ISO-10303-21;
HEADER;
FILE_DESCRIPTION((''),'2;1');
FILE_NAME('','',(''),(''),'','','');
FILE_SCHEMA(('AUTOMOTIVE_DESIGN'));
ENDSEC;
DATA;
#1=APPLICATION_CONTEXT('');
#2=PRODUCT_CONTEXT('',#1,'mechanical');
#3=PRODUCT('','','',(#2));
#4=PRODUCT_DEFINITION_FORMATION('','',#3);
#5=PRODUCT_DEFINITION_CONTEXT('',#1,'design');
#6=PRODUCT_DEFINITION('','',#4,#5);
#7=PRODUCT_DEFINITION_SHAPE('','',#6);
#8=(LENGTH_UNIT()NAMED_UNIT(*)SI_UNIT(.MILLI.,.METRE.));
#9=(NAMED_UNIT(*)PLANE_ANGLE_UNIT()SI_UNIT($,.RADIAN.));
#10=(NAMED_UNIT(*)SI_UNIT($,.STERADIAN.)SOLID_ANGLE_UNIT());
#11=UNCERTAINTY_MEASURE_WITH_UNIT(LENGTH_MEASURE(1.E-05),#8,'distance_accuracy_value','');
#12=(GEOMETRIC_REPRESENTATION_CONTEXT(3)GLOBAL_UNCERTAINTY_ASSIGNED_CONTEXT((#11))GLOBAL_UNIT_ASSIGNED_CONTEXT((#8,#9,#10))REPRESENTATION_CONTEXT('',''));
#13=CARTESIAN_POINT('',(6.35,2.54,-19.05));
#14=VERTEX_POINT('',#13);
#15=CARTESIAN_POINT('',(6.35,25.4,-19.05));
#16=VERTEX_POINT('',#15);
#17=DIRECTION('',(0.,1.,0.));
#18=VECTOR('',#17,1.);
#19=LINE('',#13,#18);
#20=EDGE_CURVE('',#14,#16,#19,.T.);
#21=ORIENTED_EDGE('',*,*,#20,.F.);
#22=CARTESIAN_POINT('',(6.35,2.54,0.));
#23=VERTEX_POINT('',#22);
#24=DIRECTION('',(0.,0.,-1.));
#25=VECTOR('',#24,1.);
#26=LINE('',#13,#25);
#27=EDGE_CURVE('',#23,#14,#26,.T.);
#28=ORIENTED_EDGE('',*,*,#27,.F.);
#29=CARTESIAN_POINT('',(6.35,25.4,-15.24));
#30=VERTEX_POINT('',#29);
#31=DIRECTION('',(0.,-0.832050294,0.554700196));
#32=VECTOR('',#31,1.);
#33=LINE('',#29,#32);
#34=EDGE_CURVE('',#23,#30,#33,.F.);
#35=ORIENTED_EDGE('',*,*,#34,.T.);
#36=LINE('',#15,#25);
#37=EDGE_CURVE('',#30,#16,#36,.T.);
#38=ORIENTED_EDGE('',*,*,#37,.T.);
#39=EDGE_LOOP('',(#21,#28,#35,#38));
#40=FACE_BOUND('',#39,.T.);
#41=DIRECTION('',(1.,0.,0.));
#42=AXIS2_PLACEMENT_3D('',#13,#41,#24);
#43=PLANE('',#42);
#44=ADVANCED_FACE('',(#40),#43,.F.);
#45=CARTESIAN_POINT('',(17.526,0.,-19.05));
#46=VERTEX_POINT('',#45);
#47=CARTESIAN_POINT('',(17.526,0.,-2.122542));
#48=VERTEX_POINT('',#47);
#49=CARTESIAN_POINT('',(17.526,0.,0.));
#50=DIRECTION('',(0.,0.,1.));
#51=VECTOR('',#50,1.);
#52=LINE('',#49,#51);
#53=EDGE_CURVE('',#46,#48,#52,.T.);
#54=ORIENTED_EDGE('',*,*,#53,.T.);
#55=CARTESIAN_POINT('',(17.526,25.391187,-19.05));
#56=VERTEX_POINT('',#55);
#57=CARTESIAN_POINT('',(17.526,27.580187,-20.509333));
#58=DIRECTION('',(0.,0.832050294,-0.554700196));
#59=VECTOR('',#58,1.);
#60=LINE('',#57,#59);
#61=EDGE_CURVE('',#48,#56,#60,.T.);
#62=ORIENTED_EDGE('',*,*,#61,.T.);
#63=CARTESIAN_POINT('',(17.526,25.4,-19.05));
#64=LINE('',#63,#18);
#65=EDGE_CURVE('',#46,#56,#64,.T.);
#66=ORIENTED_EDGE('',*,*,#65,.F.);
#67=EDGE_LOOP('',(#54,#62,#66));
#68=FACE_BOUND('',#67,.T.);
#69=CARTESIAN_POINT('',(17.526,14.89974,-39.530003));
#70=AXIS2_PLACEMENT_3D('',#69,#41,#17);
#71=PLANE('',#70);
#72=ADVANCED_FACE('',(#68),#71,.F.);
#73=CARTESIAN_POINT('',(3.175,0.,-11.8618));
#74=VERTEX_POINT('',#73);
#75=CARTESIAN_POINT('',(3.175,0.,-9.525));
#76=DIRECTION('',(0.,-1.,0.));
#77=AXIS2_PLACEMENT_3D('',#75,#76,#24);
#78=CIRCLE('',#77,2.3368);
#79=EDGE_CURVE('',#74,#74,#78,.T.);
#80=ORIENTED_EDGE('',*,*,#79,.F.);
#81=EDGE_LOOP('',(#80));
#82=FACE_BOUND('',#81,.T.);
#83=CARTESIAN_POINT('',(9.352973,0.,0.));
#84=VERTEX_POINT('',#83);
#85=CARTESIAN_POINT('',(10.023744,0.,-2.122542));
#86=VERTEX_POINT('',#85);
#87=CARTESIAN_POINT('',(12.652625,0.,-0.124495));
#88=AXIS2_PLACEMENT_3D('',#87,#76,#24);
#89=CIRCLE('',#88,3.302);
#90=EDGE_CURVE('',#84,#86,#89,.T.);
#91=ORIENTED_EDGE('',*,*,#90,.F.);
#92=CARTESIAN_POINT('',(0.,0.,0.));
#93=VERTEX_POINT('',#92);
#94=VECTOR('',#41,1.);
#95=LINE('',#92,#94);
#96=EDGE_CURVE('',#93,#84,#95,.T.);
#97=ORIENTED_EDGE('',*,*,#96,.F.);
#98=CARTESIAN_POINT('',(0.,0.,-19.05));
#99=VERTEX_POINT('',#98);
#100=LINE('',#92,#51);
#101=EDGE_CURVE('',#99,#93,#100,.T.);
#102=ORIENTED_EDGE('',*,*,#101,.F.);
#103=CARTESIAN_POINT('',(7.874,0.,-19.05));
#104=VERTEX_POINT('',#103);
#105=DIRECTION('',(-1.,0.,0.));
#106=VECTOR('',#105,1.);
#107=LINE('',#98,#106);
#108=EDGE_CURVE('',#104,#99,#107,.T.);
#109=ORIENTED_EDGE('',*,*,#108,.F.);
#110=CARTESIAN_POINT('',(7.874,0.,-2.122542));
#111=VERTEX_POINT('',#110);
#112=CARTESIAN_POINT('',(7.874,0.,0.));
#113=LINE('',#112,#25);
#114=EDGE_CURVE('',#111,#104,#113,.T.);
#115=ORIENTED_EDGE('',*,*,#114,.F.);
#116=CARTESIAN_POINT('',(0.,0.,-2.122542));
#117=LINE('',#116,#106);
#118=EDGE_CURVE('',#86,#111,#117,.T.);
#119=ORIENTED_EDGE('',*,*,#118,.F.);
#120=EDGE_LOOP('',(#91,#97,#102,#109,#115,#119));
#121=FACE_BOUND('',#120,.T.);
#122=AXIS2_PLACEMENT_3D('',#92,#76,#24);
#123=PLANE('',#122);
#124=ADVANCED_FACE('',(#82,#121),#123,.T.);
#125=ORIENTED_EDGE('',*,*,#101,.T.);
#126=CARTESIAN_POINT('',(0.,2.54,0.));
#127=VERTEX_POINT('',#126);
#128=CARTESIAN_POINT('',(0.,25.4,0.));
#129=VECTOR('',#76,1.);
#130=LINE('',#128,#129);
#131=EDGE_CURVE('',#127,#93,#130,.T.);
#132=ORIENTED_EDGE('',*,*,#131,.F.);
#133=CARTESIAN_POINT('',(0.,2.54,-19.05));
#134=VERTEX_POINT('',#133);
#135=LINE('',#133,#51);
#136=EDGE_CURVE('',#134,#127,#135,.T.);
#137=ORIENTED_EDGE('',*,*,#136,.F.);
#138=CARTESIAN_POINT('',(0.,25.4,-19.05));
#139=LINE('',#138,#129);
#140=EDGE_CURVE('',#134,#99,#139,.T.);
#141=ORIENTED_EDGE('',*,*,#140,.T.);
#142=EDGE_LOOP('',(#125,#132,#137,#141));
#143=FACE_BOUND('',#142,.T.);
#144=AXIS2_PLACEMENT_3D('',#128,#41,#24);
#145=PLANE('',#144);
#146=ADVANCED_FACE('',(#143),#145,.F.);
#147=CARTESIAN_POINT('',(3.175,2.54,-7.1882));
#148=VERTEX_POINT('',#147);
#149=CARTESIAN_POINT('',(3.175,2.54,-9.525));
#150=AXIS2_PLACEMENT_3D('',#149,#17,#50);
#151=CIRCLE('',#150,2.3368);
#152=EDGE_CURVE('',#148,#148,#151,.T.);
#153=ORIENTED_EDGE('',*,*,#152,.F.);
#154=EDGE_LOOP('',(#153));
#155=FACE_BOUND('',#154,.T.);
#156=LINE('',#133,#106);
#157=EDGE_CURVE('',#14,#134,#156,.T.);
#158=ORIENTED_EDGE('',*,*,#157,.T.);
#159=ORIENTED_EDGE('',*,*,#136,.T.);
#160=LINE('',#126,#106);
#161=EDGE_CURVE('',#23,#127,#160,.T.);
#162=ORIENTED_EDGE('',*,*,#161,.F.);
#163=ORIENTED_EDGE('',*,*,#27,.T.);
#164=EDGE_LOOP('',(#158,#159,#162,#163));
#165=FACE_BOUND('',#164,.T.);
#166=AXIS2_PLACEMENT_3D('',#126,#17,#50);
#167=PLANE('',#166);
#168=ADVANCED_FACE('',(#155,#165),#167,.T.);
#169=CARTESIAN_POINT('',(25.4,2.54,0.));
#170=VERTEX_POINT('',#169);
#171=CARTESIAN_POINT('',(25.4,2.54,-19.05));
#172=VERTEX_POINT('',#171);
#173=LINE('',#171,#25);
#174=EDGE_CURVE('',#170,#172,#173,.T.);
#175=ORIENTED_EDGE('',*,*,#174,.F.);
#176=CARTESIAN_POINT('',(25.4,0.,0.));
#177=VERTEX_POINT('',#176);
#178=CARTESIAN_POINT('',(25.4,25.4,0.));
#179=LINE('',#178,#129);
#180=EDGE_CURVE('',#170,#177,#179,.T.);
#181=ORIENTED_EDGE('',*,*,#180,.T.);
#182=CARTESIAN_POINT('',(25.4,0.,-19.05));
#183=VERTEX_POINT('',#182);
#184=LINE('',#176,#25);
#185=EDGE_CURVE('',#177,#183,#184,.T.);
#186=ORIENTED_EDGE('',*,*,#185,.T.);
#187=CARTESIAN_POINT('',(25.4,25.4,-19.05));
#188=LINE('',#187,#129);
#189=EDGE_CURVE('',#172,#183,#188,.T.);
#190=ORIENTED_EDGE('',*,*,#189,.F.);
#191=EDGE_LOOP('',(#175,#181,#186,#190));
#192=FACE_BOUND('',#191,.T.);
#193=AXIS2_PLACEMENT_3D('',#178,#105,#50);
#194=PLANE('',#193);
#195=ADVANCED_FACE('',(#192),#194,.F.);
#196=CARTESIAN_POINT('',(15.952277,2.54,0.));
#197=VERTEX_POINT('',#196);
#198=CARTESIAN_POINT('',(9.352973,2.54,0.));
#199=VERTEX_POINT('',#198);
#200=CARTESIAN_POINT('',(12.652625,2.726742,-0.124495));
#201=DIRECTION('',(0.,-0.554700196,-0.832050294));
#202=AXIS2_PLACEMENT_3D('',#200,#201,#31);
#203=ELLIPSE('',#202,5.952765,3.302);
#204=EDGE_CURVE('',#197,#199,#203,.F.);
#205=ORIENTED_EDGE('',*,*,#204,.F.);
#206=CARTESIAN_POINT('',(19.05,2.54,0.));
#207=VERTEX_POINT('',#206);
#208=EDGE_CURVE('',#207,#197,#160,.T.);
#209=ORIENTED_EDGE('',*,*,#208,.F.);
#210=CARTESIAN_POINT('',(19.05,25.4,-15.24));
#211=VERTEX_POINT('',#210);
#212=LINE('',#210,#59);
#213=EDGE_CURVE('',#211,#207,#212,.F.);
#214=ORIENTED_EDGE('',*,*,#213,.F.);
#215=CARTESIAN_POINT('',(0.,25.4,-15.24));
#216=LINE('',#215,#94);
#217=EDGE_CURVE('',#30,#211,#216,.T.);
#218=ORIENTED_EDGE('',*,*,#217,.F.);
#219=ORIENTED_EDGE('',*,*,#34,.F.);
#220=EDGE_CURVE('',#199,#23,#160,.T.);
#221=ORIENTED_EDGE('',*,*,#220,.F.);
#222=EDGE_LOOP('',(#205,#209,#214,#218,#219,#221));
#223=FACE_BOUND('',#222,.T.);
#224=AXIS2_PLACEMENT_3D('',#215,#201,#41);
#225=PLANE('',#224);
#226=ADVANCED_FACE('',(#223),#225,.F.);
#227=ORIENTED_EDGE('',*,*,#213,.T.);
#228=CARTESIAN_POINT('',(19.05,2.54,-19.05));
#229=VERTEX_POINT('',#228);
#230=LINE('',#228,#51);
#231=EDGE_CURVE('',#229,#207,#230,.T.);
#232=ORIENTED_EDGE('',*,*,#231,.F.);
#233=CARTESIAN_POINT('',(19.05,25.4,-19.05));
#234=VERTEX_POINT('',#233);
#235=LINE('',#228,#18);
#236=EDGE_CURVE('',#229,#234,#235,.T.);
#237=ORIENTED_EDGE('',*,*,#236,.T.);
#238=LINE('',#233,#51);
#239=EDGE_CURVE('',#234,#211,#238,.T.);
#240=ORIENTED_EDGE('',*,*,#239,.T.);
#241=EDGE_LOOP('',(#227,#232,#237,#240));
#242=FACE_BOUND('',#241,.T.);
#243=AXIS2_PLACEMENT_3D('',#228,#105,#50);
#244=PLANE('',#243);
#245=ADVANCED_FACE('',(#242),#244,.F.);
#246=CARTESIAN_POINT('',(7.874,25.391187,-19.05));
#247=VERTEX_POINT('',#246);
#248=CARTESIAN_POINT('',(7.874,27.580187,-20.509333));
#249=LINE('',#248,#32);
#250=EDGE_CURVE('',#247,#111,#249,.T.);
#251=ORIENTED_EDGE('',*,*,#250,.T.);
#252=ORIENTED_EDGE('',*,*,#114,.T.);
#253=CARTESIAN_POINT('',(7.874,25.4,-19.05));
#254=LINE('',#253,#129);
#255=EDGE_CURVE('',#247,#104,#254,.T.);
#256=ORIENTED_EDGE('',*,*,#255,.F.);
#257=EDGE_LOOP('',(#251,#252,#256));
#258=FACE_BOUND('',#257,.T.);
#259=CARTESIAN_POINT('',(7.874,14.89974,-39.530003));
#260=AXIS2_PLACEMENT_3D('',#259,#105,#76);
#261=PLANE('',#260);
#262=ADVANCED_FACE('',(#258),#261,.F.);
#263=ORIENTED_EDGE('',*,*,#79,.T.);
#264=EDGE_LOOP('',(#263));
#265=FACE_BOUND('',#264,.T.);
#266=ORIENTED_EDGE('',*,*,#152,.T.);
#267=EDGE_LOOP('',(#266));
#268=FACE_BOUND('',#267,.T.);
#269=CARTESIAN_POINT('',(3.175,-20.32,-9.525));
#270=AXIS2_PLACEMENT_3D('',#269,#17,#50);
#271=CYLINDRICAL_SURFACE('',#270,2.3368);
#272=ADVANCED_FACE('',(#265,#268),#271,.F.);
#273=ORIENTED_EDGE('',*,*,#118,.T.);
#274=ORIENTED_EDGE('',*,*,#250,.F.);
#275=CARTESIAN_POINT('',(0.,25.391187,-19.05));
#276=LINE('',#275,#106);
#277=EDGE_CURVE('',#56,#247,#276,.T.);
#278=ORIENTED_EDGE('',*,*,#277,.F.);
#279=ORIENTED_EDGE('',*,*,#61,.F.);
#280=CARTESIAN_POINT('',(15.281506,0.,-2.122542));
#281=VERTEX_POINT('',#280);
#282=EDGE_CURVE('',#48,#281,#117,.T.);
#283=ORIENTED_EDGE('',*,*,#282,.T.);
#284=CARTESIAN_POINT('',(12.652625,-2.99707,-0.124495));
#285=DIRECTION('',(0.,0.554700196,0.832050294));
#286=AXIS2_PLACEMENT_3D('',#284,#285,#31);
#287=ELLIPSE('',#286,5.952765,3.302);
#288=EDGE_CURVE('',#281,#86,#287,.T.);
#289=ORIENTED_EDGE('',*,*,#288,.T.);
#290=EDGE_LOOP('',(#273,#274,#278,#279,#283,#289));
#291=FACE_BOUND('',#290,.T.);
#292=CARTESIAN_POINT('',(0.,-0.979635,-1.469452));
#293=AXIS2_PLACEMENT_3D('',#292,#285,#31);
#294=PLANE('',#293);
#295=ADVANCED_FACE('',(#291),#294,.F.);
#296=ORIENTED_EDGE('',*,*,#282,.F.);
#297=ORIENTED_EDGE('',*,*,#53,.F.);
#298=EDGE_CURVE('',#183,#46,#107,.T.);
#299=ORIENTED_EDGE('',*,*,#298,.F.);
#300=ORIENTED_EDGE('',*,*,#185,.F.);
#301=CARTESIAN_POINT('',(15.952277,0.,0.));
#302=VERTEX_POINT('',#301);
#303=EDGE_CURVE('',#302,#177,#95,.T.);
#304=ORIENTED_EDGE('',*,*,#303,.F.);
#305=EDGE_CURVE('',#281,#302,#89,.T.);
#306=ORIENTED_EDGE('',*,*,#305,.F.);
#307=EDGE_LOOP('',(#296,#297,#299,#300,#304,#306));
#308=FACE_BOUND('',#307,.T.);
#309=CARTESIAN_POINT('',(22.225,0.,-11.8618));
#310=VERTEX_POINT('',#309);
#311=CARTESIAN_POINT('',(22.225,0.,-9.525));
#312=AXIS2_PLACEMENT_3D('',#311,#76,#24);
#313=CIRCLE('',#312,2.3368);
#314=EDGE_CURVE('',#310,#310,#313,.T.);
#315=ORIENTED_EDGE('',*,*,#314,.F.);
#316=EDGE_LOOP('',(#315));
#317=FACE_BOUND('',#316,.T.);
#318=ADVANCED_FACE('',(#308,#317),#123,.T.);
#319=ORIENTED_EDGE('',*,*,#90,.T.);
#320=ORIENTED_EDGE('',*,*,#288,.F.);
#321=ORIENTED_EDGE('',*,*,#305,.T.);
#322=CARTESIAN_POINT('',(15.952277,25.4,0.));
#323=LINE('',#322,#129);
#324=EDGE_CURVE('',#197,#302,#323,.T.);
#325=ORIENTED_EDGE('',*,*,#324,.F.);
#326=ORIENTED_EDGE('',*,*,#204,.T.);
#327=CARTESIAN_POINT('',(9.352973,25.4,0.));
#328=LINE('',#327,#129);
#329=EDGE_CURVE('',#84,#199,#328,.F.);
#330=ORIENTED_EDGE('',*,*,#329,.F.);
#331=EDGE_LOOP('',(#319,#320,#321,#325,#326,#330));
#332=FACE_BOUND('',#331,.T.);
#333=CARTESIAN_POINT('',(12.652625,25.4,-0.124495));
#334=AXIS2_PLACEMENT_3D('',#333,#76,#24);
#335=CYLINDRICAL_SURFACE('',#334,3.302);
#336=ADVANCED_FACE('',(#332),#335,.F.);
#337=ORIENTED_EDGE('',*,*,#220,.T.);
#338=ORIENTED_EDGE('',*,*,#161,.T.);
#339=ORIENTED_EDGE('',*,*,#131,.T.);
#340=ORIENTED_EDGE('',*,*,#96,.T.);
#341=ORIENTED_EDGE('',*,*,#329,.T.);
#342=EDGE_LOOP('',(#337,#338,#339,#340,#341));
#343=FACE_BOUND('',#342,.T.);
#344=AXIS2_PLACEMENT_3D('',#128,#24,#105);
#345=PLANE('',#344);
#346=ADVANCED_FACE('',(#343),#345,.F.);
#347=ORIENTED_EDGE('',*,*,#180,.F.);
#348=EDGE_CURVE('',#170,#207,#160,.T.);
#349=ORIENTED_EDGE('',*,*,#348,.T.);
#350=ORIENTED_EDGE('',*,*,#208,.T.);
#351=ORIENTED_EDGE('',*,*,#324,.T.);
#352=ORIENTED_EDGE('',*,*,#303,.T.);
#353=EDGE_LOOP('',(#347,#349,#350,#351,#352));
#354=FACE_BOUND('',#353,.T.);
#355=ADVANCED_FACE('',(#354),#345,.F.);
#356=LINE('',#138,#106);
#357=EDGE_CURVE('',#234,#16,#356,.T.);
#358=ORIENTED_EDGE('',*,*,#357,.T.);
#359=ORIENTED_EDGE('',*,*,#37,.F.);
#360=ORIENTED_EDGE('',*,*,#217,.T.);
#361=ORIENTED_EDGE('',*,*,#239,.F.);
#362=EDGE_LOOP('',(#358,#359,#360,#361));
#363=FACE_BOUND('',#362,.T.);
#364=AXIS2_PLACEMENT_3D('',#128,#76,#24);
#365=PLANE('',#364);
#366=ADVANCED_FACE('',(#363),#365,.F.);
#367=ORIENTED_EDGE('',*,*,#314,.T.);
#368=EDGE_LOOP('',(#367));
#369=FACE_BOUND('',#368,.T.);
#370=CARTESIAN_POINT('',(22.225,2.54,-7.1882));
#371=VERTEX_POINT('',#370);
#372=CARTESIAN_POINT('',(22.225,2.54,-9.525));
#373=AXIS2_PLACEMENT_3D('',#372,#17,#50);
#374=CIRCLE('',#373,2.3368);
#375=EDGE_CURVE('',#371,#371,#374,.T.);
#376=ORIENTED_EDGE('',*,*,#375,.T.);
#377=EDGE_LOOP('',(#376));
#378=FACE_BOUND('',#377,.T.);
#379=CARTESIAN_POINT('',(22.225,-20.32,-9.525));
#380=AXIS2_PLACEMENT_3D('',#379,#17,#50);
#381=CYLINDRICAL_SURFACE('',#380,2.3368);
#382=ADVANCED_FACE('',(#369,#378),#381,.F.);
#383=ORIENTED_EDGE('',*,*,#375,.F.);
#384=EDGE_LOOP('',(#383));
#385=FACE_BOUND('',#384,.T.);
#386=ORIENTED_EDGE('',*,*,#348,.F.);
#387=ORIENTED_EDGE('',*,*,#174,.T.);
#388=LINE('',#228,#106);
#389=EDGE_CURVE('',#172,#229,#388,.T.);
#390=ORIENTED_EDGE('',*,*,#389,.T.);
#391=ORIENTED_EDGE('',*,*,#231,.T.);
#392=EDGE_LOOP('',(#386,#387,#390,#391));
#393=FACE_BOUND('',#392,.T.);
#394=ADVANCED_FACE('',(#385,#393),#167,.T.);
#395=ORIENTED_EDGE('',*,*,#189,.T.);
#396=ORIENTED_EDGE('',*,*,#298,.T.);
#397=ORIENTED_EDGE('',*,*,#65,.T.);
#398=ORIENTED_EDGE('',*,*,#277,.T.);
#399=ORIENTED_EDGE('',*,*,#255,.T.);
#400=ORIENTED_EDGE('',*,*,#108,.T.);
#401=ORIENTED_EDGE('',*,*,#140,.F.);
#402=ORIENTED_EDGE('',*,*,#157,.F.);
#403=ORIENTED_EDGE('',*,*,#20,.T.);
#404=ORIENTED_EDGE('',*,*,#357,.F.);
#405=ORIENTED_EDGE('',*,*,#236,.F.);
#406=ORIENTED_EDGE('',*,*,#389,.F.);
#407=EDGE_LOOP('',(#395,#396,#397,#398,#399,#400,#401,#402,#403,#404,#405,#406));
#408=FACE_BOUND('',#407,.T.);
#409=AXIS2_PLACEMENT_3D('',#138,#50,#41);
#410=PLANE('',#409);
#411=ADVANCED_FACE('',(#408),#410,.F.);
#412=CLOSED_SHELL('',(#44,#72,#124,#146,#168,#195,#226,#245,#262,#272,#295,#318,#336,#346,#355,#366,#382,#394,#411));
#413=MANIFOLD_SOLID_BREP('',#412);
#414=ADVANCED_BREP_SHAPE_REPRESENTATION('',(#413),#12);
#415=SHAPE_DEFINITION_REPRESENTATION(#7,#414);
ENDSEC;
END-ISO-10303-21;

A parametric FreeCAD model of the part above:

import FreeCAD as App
import Part
import Sketcher

V = App.Vector
Q = App.Units.Quantity


def edges_at(feature, points):
    """Names of the edges that pass closest to the given points."""
    edges = feature.Shape.Edges
    near = lambda p: min(range(len(edges)), key=lambda i: edges[i].distToShape(Part.Vertex(*p))[0])
    return sorted({f"Edge{near(p) + 1}" for p in points})

doc = App.newDocument("Part")
body = doc.addObject("PartDesign::Body", "Body")

sketch1 = body.newObject("Sketcher::SketchObject", "Sketch")
sketch1.AttachmentSupport = (doc.getObject("XZ_Plane"), [""])
sketch1.MapMode = "FlatFace"
sketch1.addGeometry([
    Part.LineSegment(V(0, -19, 0), V(0, 0, 0)),
    Part.LineSegment(V(0, 0, 0), V(25, 0, 0)),
    Part.LineSegment(V(25, 0, 0), V(25, -19, 0)),
    Part.LineSegment(V(25, -19, 0), V(0, -19, 0)),
], False)
sketch1.addConstraint([
    Sketcher.Constraint("Coincident", 0, 2, 1, 1),
    Sketcher.Constraint("Coincident", 1, 2, 2, 1),
    Sketcher.Constraint("Coincident", 2, 2, 3, 1),
    Sketcher.Constraint("Coincident", 3, 2, 0, 1),
    Sketcher.Constraint("Vertical", 0),
    Sketcher.Constraint("Horizontal", 1),
    Sketcher.Constraint("Vertical", 2),
    Sketcher.Constraint("Horizontal", 3),
    Sketcher.Constraint("Coincident", 0, 2, -1, 1),
    Sketcher.Constraint("DistanceX", 1, 1, 1, 2, Q("1 in")),
    Sketcher.Constraint("DistanceY", 0, 1, 0, 2, Q("0.75 in")),
])
pad1 = body.newObject("PartDesign::Pad", "Pad")
pad1.Profile = sketch1
pad1.Length = Q("1 in")
pad1.Reversed = True
doc.recompute()

chamfer = body.newObject("PartDesign::Chamfer", "Chamfer")
chamfer.Base = (pad1, edges_at(pad1, [(12.7, 25.4, 0)]))
chamfer.ChamferType = "Two distances"
chamfer.Size = Q("0.9 in")
chamfer.Size2 = Q("0.6 in")

sketch2 = body.newObject("Sketcher::SketchObject", "Sketch001")
sketch2.AttachmentSupport = (doc.getObject("XZ_Plane"), [""])
sketch2.MapMode = "FlatFace"
sketch2.AttachmentOffset = App.Placement(V(0, 0, -1 * 25.4), App.Rotation())
sketch2.addGeometry([
    Part.LineSegment(V(19, -19, 0), V(19, 4, 0)),
    Part.LineSegment(V(19, 4, 0), V(25, 4, 0)),
    Part.LineSegment(V(25, 4, 0), V(25, -19, 0)),
    Part.LineSegment(V(25, -19, 0), V(19, -19, 0)),
    Part.LineSegment(V(0, -19, 0), V(0, 4, 0)),
    Part.LineSegment(V(0, 4, 0), V(6, 4, 0)),
    Part.LineSegment(V(6, 4, 0), V(6, -19, 0)),
    Part.LineSegment(V(6, -19, 0), V(0, -19, 0)),
], False)
sketch2.addConstraint([
    Sketcher.Constraint("Coincident", 0, 2, 1, 1),
    Sketcher.Constraint("Coincident", 1, 2, 2, 1),
    Sketcher.Constraint("Coincident", 2, 2, 3, 1),
    Sketcher.Constraint("Coincident", 3, 2, 0, 1),
    Sketcher.Constraint("Coincident", 4, 2, 5, 1),
    Sketcher.Constraint("Coincident", 5, 2, 6, 1),
    Sketcher.Constraint("Coincident", 6, 2, 7, 1),
    Sketcher.Constraint("Coincident", 7, 2, 4, 1),
    Sketcher.Constraint("Vertical", 0),
    Sketcher.Constraint("Horizontal", 1),
    Sketcher.Constraint("Vertical", 2),
    Sketcher.Constraint("Horizontal", 3),
    Sketcher.Constraint("Vertical", 4),
    Sketcher.Constraint("Horizontal", 5),
    Sketcher.Constraint("Vertical", 6),
    Sketcher.Constraint("Horizontal", 7),
    Sketcher.Constraint("PointOnObject", 4, 2, -2),
    Sketcher.Constraint("Horizontal", 1, 2, 4, 2),
    Sketcher.Constraint("Horizontal", 3, 2, 6, 2),
    Sketcher.Constraint("Equal", 3, 5),
    Sketcher.Constraint("DistanceX", -1, 1, 1, 2, Q("1 in")),
    Sketcher.Constraint("DistanceX", 1, 1, 1, 2, Q("0.25 in")),
    Sketcher.Constraint("DistanceY", 2, 2, -1, 1, Q("0.75 in")),
    Sketcher.Constraint("DistanceY", 0, 1, 0, 2, 22.789153),
])
pocket1 = body.newObject("PartDesign::Pocket", "Pocket")
pocket1.Profile = sketch2
pocket1.Length = Q("0.9 in")
pocket1.Reversed = True

sketch3 = body.newObject("Sketcher::SketchObject", "Sketch002")
sketch3.Placement = App.Placement(V(0, -0.979635, -1.469452), App.Rotation(V(1, 0, 0), V(0, 0.832050294, -0.554700196), V(0, 0.554700196, 0.832050294), "ZXY"))
sketch3.addGeometry([
    Part.LineSegment(V(8, 34, 0), V(8, -5, 0)),
    Part.LineSegment(V(8, -5, 0), V(18, -5, 0)),
    Part.LineSegment(V(18, -5, 0), V(18, 34, 0)),
    Part.LineSegment(V(18, 34, 0), V(8, 34, 0)),
], False)
sketch3.addConstraint([
    Sketcher.Constraint("Coincident", 0, 2, 1, 1),
    Sketcher.Constraint("Coincident", 1, 2, 2, 1),
    Sketcher.Constraint("Coincident", 2, 2, 3, 1),
    Sketcher.Constraint("Coincident", 3, 2, 0, 1),
    Sketcher.Constraint("Vertical", 0),
    Sketcher.Constraint("Horizontal", 1),
    Sketcher.Constraint("Vertical", 2),
    Sketcher.Constraint("Horizontal", 3),
    Sketcher.Constraint("DistanceX", 1, 1, 1, 2, Q("0.38 in")),
    Sketcher.Constraint("DistanceX", -1, 1, 0, 2, Q("0.31 in")),
    Sketcher.Constraint("DistanceY", 0, 2, 0, 1, 39.353766),
    Sketcher.Constraint("DistanceY", 0, 2, -1, 1, 5.029133),
])
pocket2 = body.newObject("PartDesign::Pocket", "Pocket001")
pocket2.Profile = sketch3
pocket2.Length = Q("0.9 in")

sketch4 = body.newObject("Sketcher::SketchObject", "Sketch003")
sketch4.AttachmentSupport = (doc.getObject("XZ_Plane"), [""])
sketch4.MapMode = "FlatFace"
sketch4.AttachmentOffset = App.Placement(V(0, 0, -0.1 * 25.4), App.Rotation())
sketch4.addGeometry([
    Part.Circle(V(3.2, -9.5, 0), V(0, 0, 1), 2.3),
    Part.Circle(V(22.2, -9.5, 0), V(0, 0, 1), 2.3),
], False)
sketch4.addConstraint([
    Sketcher.Constraint("Equal", 0, 1),
    Sketcher.Constraint("Horizontal", 0, 3, 1, 3),
    Sketcher.Constraint("Diameter", 0, Q("0.184 in")),
    Sketcher.Constraint("DistanceX", 0, 3, 1, 3, Q("0.75 in")),
    Sketcher.Constraint("DistanceX", -1, 1, 0, 3, Q("0.125 in")),
    Sketcher.Constraint("DistanceY", 0, 3, -1, 1, Q("0.375 in")),
])
pocket3 = body.newObject("PartDesign::Pocket", "Pocket002")
pocket3.Profile = sketch4
pocket3.Length = Q("0.9 in")
pocket3.Reversed = True

sketch5 = body.newObject("Sketcher::SketchObject", "Sketch004")
sketch5.AttachmentSupport = (doc.getObject("XZ_Plane"), [""])
sketch5.MapMode = "FlatFace"
sketch5.addGeometry(Part.Circle(V(12.7, -0.1, 0), V(0, 0, 1), 3.3), False)
sketch5.addConstraint([
    Sketcher.Constraint("Diameter", 0, Q("0.26 in")),
    Sketcher.Constraint("DistanceX", -1, 1, 0, 3, 12.652625),
    Sketcher.Constraint("DistanceY", 0, 3, -1, 1, 0.124495),
])
pocket4 = body.newObject("PartDesign::Pocket", "Pocket003")
pocket4.Profile = sketch5
pocket4.Type = "ThroughAll"

doc.recompute()
